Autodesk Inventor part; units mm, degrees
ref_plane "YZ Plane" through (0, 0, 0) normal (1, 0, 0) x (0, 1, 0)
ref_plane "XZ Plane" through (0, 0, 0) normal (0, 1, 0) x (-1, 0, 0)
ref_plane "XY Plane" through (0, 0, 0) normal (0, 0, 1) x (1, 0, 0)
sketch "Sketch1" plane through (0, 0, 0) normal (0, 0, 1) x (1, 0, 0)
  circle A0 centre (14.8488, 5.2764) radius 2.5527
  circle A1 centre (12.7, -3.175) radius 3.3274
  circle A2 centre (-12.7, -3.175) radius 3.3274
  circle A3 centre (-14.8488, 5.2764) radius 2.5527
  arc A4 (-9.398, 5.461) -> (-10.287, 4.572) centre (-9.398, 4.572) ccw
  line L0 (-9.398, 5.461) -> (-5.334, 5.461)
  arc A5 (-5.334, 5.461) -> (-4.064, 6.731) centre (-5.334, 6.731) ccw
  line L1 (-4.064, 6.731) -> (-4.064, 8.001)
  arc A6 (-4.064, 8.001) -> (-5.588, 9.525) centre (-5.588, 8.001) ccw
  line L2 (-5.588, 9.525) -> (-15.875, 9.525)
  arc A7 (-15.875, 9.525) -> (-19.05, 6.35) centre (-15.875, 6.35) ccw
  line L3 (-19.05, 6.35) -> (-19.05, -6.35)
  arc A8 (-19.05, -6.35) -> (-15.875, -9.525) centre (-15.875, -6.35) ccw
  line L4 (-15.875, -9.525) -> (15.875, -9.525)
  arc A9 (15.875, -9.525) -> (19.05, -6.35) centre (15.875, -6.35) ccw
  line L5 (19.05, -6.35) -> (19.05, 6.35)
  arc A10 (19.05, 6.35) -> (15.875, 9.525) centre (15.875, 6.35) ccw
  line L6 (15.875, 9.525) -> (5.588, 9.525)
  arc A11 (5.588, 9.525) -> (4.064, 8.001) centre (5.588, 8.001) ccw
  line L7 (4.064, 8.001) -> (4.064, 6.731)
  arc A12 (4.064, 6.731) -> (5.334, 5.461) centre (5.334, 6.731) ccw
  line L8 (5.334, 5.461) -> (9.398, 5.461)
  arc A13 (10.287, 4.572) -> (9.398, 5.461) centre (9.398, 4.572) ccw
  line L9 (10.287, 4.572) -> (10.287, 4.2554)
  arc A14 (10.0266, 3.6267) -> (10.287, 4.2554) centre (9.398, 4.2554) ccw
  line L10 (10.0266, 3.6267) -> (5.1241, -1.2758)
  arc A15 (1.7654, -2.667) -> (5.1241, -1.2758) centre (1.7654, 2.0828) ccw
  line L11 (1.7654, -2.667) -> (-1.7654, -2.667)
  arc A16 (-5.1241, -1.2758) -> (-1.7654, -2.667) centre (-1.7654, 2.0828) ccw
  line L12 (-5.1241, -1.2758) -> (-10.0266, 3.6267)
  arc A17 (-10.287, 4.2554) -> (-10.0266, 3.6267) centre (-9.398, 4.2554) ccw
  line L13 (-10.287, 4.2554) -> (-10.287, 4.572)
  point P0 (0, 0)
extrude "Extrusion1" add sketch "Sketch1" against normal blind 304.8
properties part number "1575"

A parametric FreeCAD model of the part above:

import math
import FreeCAD as App
import Part
import Sketcher
from FreeCAD import Vector
Q = App.Units.Quantity

doc = App.newDocument("Part")
body = doc.addObject("PartDesign::Body", "Body")

sketch1 = doc.addObject("Sketcher::SketchObject", "Sketch")
body.addObject(sketch1)
sketch1.AttachmentSupport = (doc.XY_Plane, [""])
sketch1.MapMode = "FlatFace"
sketch1.addGeometry([
    Part.ArcOfCircle(Part.Circle(Vector(-9.398, 4.572, 0), Vector(0, 0, 1), 0.889), math.radians(90), math.radians(180)),
    Part.LineSegment(Vector(-9.398, 5.461, 0), Vector(-5.334, 5.461, 0)),
    Part.ArcOfCircle(Part.Circle(Vector(-5.334, 6.731, 0), Vector(0, 0, 1), 1.27), math.radians(-90), math.radians(0)),
    Part.LineSegment(Vector(-4.064, 6.731, 0), Vector(-4.064, 8.001, 0)),
    Part.ArcOfCircle(Part.Circle(Vector(-5.588, 8.001, 0), Vector(0, 0, 1), 1.524), math.radians(0), math.radians(90)),
    Part.LineSegment(Vector(-5.588, 9.525, 0), Vector(-15.875, 9.525, 0)),
    Part.ArcOfCircle(Part.Circle(Vector(-15.875, 6.35, 0), Vector(0, 0, 1), 3.175), math.radians(90), math.radians(180)),
    Part.LineSegment(Vector(-19.05, 6.35, 0), Vector(-19.05, -6.35, 0)),
    Part.ArcOfCircle(Part.Circle(Vector(-15.875, -6.35, 0), Vector(0, 0, 1), 3.175), math.radians(180), math.radians(270)),
    Part.LineSegment(Vector(-15.875, -9.525, 0), Vector(15.875, -9.525, 0)),
    Part.ArcOfCircle(Part.Circle(Vector(15.875, -6.35, 0), Vector(0, 0, 1), 3.175), math.radians(-90), math.radians(0)),
    Part.LineSegment(Vector(19.05, -6.35, 0), Vector(19.05, 6.35, 0)),
    Part.ArcOfCircle(Part.Circle(Vector(15.875, 6.35, 0), Vector(0, 0, 1), 3.175), math.radians(0), math.radians(90)),
    Part.LineSegment(Vector(15.875, 9.525, 0), Vector(5.588, 9.525, 0)),
    Part.ArcOfCircle(Part.Circle(Vector(5.588, 8.001, 0), Vector(0, 0, 1), 1.524), math.radians(90), math.radians(180)),
    Part.LineSegment(Vector(4.064, 8.001, 0), Vector(4.064, 6.731, 0)),
    Part.ArcOfCircle(Part.Circle(Vector(5.334, 6.731, 0), Vector(0, 0, 1), 1.27), math.radians(180), math.radians(270)),
    Part.LineSegment(Vector(5.334, 5.461, 0), Vector(9.398, 5.461, 0)),
    Part.ArcOfCircle(Part.Circle(Vector(9.398, 4.572, 0), Vector(0, 0, 1), 0.889), math.radians(0), math.radians(90)),
    Part.LineSegment(Vector(10.287, 4.572, 0), Vector(10.287, 4.2554, 0)),
    Part.ArcOfCircle(Part.Circle(Vector(9.398, 4.2554, 0), Vector(0, 0, 1), 0.889045), math.radians(-45.004557), math.radians(0)),
    Part.LineSegment(Vector(10.0266, 3.6267, 0), Vector(5.1241, -1.2758, 0)),
    Part.ArcOfCircle(Part.Circle(Vector(1.7654, 2.0828, 0), Vector(0, 0, 1), 4.7498), math.radians(-90), math.radians(-44.999147)),
    Part.LineSegment(Vector(1.7654, -2.667, 0), Vector(-1.7654, -2.667, 0)),
    Part.ArcOfCircle(Part.Circle(Vector(-1.7654, 2.0828, 0), Vector(0, 0, 1), 4.749848), math.radians(-135.000853), math.radians(-90)),
    Part.LineSegment(Vector(-5.1241, -1.2758, 0), Vector(-10.0266, 3.6267, 0)),
    Part.ArcOfCircle(Part.Circle(Vector(-9.398, 4.2554, 0), Vector(0, 0, 1), 0.889), math.radians(180), math.radians(225.004557)),
    Part.LineSegment(Vector(-10.287, 4.2554, 0), Vector(-10.287, 4.572, 0)),
    Part.Circle(Vector(-12.7, -3.175, 0), Vector(0, 0, 1), 3.3274),
    Part.Circle(Vector(12.7, -3.175, 0), Vector(0, 0, 1), 3.3274),
    Part.Circle(Vector(-14.8488, 5.2764, 0), Vector(0, 0, 1), 2.5527),
    Part.Circle(Vector(14.8488, 5.2764, 0), Vector(0, 0, 1), 2.5527),
], False)
sketch1.addConstraint([
    Sketcher.Constraint("Tangent", 0, 1, 1, 1),
    Sketcher.Constraint("Tangent", 1, 2, 2, 1),
    Sketcher.Constraint("Tangent", 2, 2, 3, 1),
    Sketcher.Constraint("Tangent", 3, 2, 4, 1),
    Sketcher.Constraint("Tangent", 4, 2, 5, 1),
    Sketcher.Constraint("Tangent", 5, 2, 6, 1),
    Sketcher.Constraint("Tangent", 6, 2, 7, 1),
    Sketcher.Constraint("Tangent", 7, 2, 8, 1),
    Sketcher.Constraint("Tangent", 8, 2, 9, 1),
    Sketcher.Constraint("Tangent", 9, 2, 10, 1),
    Sketcher.Constraint("Tangent", 10, 2, 11, 1),
    Sketcher.Constraint("Tangent", 11, 2, 12, 1),
    Sketcher.Constraint("Tangent", 12, 2, 13, 1),
    Sketcher.Constraint("Tangent", 13, 2, 14, 1),
    Sketcher.Constraint("Tangent", 14, 2, 15, 1),
    Sketcher.Constraint("Tangent", 15, 2, 16, 1),
    Sketcher.Constraint("Tangent", 16, 2, 17, 1),
    Sketcher.Constraint("Tangent", 17, 2, 18, 2),
    Sketcher.Constraint("Tangent", 18, 1, 19, 1),
    Sketcher.Constraint("Tangent", 19, 2, 20, 2),
    Sketcher.Constraint("Tangent", 20, 1, 21, 1),
    Sketcher.Constraint("Tangent", 21, 2, 22, 2),
    Sketcher.Constraint("Tangent", 22, 1, 23, 1),
    Sketcher.Constraint("Tangent", 23, 2, 24, 2),
    Sketcher.Constraint("Tangent", 24, 1, 25, 1),
    Sketcher.Constraint("Tangent", 25, 2, 26, 2),
    Sketcher.Constraint("Tangent", 26, 1, 27, 1),
    Sketcher.Constraint("Tangent", 27, 2, 0, 2),
    Sketcher.Constraint("Horizontal", 1),
    Sketcher.Constraint("Vertical", 3),
    Sketcher.Constraint("Horizontal", 5),
    Sketcher.Constraint("Vertical", 7),
    Sketcher.Constraint("Horizontal", 9),
    Sketcher.Constraint("Vertical", 11),
    Sketcher.Constraint("Horizontal", 13),
    Sketcher.Constraint("Vertical", 15),
    Sketcher.Constraint("Horizontal", 17),
    Sketcher.Constraint("Vertical", 19),
    Sketcher.Constraint("Horizontal", 23),
    Sketcher.Constraint("Vertical", 27),
    Sketcher.Constraint("Equal", 6, 8),
    Sketcher.Constraint("Equal", 8, 10),
    Sketcher.Constraint("Equal", 10, 12),
    Sketcher.Constraint("Equal", 4, 14),
    Sketcher.Constraint("Equal", 2, 16),
    Sketcher.Constraint("Equal", 0, 18),
    Sketcher.Constraint("Equal", 18, 20),
    Sketcher.Constraint("Equal", 22, 24),
    Sketcher.Constraint("Equal", 20, 26),
    Sketcher.Constraint("Equal", 28, 29),
    Sketcher.Constraint("Equal", 30, 31),
    Sketcher.Constraint("Symmetric", 6, 3, 10, 3, -1, 1),
    Sketcher.Constraint("Symmetric", 4, 3, 14, 3, -2),
    Sketcher.Constraint("Symmetric", 0, 3, 18, 3, -2),
    Sketcher.Constraint("Symmetric", 28, 3, 29, 3, -2),
    Sketcher.Constraint("Symmetric", 30, 3, 31, 3, -2),
    Sketcher.Constraint("Symmetric", 21, 2, 24, 1, -2),
    Sketcher.Constraint("Perpendicular", 21, 25),
    Sketcher.Constraint("Radius", 2, Q("0.05 in")),
    Sketcher.Constraint("Radius", 4, Q("0.06 in")),
    Sketcher.Constraint("Diameter", 28, Q("0.262 in")),
    Sketcher.Constraint("Diameter", 30, Q("0.201 in")),
    Sketcher.Constraint("DistanceY", 7, 2, 7, 1, Q("0.5 in")),
    Sketcher.Constraint("Radius", 0, Q("0.035 in")),
    Sketcher.Constraint("Radius", 6, Q("0.125 in")),
    Sketcher.Constraint("Radius", 22, Q("0.187 in")),
    Sketcher.Constraint("DistanceX", 1, 1, 1, 2, Q("0.16 in")),
    Sketcher.Constraint("DistanceX", 9, 1, 9, 2, Q("1.25 in")),
    Sketcher.Constraint("DistanceY", 3, 1, 3, 2, Q("0.05 in")),
    Sketcher.Constraint("DistanceX", 28, 3, -1, 1, Q("0.5 in")),
    Sketcher.Constraint("DistanceX", 5, 2, 5, 1, Q("0.405 in")),
    Sketcher.Constraint("DistanceX", 23, 2, 23, 1, Q("0.139 in")),
    Sketcher.Constraint("DistanceY", 8, 2, 28, 3, Q("0.25 in")),
    Sketcher.Constraint("DistanceY", 22, 1, 16, 2, Q("0.32 in")),
    Sketcher.Constraint("DistanceX", 30, 3, -1, 1, Q("0.5846 in")),
    Sketcher.Constraint("DistanceY", 26, 3, 30, 3, Q("0.0402 in")),
])
pad1 = doc.addObject("PartDesign::Pad", "Pad")
body.addObject(pad1)
pad1.Profile = sketch1
pad1.Length = Q("12 in")
pad1.Reversed = True

doc.recompute()
